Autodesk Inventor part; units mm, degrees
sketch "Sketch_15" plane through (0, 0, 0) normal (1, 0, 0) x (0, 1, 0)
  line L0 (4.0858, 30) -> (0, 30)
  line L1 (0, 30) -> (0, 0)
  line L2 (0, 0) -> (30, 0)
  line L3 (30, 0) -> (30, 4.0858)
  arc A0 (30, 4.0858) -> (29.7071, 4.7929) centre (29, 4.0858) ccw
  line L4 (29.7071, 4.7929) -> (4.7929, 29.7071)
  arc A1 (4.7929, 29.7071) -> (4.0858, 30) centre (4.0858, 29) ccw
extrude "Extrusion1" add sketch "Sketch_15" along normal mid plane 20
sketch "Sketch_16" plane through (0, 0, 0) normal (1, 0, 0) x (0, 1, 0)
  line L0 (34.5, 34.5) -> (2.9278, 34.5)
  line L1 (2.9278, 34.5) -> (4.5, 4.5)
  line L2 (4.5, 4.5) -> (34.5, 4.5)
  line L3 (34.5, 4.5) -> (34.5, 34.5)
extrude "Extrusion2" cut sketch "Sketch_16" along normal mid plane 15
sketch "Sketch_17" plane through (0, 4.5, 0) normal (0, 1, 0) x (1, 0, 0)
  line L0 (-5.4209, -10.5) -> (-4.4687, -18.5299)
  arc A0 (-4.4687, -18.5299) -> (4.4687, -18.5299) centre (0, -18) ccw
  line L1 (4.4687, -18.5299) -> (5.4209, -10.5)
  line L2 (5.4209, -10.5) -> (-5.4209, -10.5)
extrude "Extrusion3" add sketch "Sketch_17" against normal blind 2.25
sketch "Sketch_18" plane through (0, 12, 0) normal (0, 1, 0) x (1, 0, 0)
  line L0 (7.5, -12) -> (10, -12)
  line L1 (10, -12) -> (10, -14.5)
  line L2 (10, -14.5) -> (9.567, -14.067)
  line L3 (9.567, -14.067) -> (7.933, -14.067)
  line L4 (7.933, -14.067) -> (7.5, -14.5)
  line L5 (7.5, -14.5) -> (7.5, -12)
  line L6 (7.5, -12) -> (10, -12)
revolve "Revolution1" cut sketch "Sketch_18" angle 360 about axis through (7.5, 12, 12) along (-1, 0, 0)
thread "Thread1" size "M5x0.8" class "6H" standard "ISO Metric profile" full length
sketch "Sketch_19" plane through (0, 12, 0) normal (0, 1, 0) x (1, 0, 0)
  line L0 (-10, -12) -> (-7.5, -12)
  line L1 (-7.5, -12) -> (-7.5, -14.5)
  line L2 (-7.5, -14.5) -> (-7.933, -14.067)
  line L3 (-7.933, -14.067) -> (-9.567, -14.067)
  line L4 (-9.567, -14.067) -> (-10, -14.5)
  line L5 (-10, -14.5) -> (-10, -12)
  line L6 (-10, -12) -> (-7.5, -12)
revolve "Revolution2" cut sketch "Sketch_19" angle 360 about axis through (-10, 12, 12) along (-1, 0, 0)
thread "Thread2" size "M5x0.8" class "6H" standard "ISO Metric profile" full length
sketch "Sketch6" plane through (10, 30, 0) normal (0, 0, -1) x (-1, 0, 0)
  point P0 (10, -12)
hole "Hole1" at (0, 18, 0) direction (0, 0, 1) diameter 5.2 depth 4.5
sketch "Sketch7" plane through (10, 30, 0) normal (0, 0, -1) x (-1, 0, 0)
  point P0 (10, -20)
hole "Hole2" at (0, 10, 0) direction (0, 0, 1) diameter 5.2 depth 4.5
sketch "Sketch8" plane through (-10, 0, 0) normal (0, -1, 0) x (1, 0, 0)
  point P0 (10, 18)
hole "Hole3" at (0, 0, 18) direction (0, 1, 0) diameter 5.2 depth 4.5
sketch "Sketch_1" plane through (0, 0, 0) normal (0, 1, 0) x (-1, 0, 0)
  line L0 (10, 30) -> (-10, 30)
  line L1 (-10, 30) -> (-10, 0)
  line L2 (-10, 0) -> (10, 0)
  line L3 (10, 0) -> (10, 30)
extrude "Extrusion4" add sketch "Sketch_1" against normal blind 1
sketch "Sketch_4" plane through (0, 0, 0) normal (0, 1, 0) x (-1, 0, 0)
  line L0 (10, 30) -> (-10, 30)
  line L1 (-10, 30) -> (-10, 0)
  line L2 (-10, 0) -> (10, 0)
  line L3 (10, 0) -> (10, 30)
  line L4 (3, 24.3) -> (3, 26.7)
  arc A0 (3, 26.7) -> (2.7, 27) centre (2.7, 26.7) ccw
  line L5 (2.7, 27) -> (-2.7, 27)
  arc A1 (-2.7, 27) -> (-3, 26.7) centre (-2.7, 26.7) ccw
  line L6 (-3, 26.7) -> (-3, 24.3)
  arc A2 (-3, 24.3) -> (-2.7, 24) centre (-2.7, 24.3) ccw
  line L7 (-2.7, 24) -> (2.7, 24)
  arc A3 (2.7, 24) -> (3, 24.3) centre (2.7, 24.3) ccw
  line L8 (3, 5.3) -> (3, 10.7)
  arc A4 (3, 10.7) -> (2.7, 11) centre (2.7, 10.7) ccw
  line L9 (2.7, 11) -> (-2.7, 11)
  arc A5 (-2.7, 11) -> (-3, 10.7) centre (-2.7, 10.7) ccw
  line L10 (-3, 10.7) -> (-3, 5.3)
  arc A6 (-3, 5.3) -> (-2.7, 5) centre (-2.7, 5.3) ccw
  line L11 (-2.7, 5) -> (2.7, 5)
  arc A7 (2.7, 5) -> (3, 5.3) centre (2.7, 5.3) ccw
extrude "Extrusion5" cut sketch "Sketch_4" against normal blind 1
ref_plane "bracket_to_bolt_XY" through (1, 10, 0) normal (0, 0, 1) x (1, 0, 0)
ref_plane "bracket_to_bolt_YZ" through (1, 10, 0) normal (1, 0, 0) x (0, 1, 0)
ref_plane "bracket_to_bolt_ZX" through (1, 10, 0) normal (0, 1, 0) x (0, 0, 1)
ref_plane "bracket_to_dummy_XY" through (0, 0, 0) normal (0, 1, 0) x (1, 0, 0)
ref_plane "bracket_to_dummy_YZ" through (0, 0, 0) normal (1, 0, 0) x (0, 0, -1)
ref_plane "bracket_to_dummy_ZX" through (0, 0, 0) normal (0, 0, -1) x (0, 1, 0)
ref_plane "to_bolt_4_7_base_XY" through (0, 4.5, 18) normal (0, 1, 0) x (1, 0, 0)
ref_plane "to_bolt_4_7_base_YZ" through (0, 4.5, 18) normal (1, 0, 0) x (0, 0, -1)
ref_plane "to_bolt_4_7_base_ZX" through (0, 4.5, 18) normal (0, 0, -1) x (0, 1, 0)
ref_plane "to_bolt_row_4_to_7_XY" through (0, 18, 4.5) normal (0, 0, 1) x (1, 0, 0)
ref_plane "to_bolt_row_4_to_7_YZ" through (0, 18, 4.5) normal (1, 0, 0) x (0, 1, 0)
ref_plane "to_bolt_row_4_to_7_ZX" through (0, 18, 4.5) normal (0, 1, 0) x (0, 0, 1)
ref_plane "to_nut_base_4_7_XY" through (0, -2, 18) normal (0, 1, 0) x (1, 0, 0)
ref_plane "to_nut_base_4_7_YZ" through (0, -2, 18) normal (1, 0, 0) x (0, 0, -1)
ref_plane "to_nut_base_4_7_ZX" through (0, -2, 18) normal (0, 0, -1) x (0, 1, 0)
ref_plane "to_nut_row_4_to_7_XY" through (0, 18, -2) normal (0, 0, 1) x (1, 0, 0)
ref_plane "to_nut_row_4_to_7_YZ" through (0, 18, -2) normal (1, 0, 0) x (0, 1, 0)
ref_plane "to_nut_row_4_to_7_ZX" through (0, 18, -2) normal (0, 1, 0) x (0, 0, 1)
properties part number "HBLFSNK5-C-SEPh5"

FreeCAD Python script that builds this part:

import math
import FreeCAD as App
import Part
import Sketcher

V = App.Vector
Q = App.Units.Quantity


def add_polygon(sketch, points):
    """Adds a closed chain of lines whose ends are joined by coincident constraints."""
    first, n = sketch.GeometryCount, len(points)
    for a, b in zip(points, points[1:] + points[:1]):
        sketch.addGeometry(Part.LineSegment(App.Vector(*a, 0), App.Vector(*b, 0)), False)
    for i in range(n):
        sketch.addConstraint(Sketcher.Constraint("Coincident", first + i, 2, first + (i + 1) % n, 1))

doc = App.newDocument("Part")
body = doc.addObject("PartDesign::Body", "Body")

# Sketch on YZ plane
sketch1 = body.newObject("Sketcher::SketchObject", "Sketch")
sketch1.AttachmentSupport = (doc.getObject("YZ_Plane"), [""])
sketch1.MapMode = "FlatFace"
sketch1.addGeometry([
    Part.ArcOfCircle(Part.Circle(V(4.1, 29, 0), V(0, 0, 1), 1), math.radians(45), math.radians(90)),  # 0
    Part.LineSegment(V(4.1, 30, 0), V(0, 30, 0)),  # 1
    Part.LineSegment(V(0, 30, 0), V(0, 0, 0)),  # 2
    Part.LineSegment(V(0, 0, 0), V(30, 0, 0)),  # 3
    Part.LineSegment(V(30, 0, 0), V(30, 4.1, 0)),  # 4
    Part.ArcOfCircle(Part.Circle(V(29, 4.1, 0), V(0, 0, 1), 1), math.radians(0), math.radians(45)),  # 5
    Part.LineSegment(V(29.7, 4.8, 0), V(4.8, 29.7, 0)),  # 6
], False)
sketch1.addConstraint([
    Sketcher.Constraint("Tangent", 0, 2, 1, 1),
    Sketcher.Constraint("Coincident", 1, 2, 2, 1),
    Sketcher.Constraint("Coincident", 2, 2, 3, 1),
    Sketcher.Constraint("Coincident", 3, 2, 4, 1),
    Sketcher.Constraint("Tangent", 4, 2, 5, 1),
    Sketcher.Constraint("Tangent", 5, 2, 6, 1),
    Sketcher.Constraint("Tangent", 6, 2, 0, 1),
    Sketcher.Constraint("Horizontal", 1),
    Sketcher.Constraint("Vertical", 2),
    Sketcher.Constraint("Horizontal", 3),
    Sketcher.Constraint("Vertical", 4),
    Sketcher.Constraint("Coincident", 2, 2, -1, 1),
    Sketcher.Constraint("Equal", 0, 5),
    Sketcher.Constraint("Equal", 3, 2),
    Sketcher.Constraint("Equal", 1, 4),
    Sketcher.Constraint("Radius", 0, 1.0),
    Sketcher.Constraint("DistanceX", 3, 1, 3, 2, 30.0),
    Sketcher.Constraint("Distance", 6, 35.234),
])
pad1 = body.newObject("PartDesign::Pad", "Pad")
pad1.Profile = sketch1
pad1.Length = 20
pad1.Midplane = True

# Sketch on YZ plane
sketch2 = body.newObject("Sketcher::SketchObject", "Sketch001")
sketch2.AttachmentSupport = (doc.getObject("YZ_Plane"), [""])
sketch2.MapMode = "FlatFace"
add_polygon(sketch2, [(34, 4), (34, 34), (3, 34), (4, 4)])  # lines 0-3
sketch2.addConstraint([
    Sketcher.Constraint("Vertical", 0),
    Sketcher.Constraint("Horizontal", 1),
    Sketcher.Constraint("Horizontal", 3),
    Sketcher.Constraint("Equal", 3, 0),
    Sketcher.Constraint("DistanceX", 3, 1, 3, 2, 30.0),
    Sketcher.Constraint("Angle", 2, Q("-87 deg")),
    Sketcher.Constraint("DistanceX", -1, 1, 0, 2, 34.5),
    Sketcher.Constraint("DistanceY", -1, 1, 0, 2, 34.5),
])
pocket1 = body.newObject("PartDesign::Pocket", "Pocket")
pocket1.Profile = sketch2
pocket1.Length = 15
pocket1.Midplane = True

# Sketch on XZ plane
sketch3 = body.newObject("Sketcher::SketchObject", "Sketch002")
sketch3.AttachmentSupport = (doc.getObject("XZ_Plane"), [""])
sketch3.MapMode = "FlatFace"
sketch3.AttachmentOffset = App.Placement(V(0, 0, -4.5), App.Rotation())
sketch3.addGeometry([
    Part.LineSegment(V(5.4, 10.5, 0), V(-5.4, 10.5, 0)),
    Part.LineSegment(V(-5.4, 10.5, 0), V(-4.5, 18.5, 0)),
    Part.ArcOfCircle(Part.Circle(V(0, 18, 0), V(0, 0, 1), 4.5), math.radians(7), math.radians(173)),
    Part.LineSegment(V(4.5, 18.5, 0), V(5.4, 10.5, 0)),
], False)
sketch3.addConstraint([
    Sketcher.Constraint("Coincident", 0, 2, 1, 1),
    Sketcher.Constraint("Tangent", 1, 2, 2, 2),
    Sketcher.Constraint("Tangent", 2, 1, 3, 1),
    Sketcher.Constraint("Coincident", 3, 2, 0, 1),
    Sketcher.Constraint("Horizontal", 0),
    Sketcher.Constraint("Symmetric", 1, 2, 2, 1, -2),
    Sketcher.Constraint("Radius", 2, 4.5),
    Sketcher.Constraint("DistanceY", -1, 1, 2, 3, 18.0),
    Sketcher.Constraint("DistanceY", -1, 1, 0, 2, 10.5),
    Sketcher.Constraint("DistanceY", -1, 1, 1, 2, 18.53),
])
pad2 = body.newObject("PartDesign::Pad", "Pad001")
pad2.Profile = sketch3
pad2.Length = 2.25

# Sketch on XZ plane
sketch4 = body.newObject("Sketcher::SketchObject", "Sketch003")
sketch4.AttachmentSupport = (doc.getObject("XZ_Plane"), [""])
sketch4.MapMode = "FlatFace"
sketch4.AttachmentOffset = App.Placement(V(0, 0, -12), App.Rotation())
add_polygon(sketch4, [(10, 12), (7.5, 12), (7.5, 14.5), (7.9, 14.1), (9.6, 14.1), (10, 14.5)])  # lines 0-5
sketch4.addGeometry(Part.LineSegment(V(10, 12, 0), V(7.5, 12, 0)), True)  # axis
sketch4.addConstraint([
    Sketcher.Constraint("Horizontal", 0),
    Sketcher.Constraint("Vertical", 1),
    Sketcher.Constraint("Horizontal", 3),
    Sketcher.Constraint("Vertical", 5),
    Sketcher.Constraint("Horizontal", 6),
    Sketcher.Constraint("Coincident", 6, 1, 5, 2),
    Sketcher.Constraint("Perpendicular", 2, 4),
    Sketcher.Constraint("Horizontal", 1, 2, 4, 2),
    Sketcher.Constraint("Vertical", 1, 2, 6, 2),
    Sketcher.Constraint("Equal", 6, 1),
    Sketcher.Constraint("Equal", 2, 4),
    Sketcher.Constraint("DistanceX", 0, 2, 0, 1, 2.5),
    Sketcher.Constraint("DistanceY", -1, 1, 0, 2, 12.0),
    Sketcher.Constraint("DistanceX", -1, 1, 4, 2, 10.0),
    Sketcher.Constraint("DistanceX", 3, 1, 3, 2, 1.634),
])
groove = body.newObject("PartDesign::Groove", "Groove")
groove.Profile = sketch4
groove.ReferenceAxis = (sketch4, ["Axis0"])
groove.Angle = 360

# Sketch on XZ plane
sketch5 = body.newObject("Sketcher::SketchObject", "Sketch004")
sketch5.AttachmentSupport = (doc.getObject("XZ_Plane"), [""])
sketch5.MapMode = "FlatFace"
sketch5.AttachmentOffset = App.Placement(V(0, 0, -12), App.Rotation())
add_polygon(sketch5, [(-7.5, 12), (-10, 12), (-10, 14.5), (-9.6, 14.1), (-7.9, 14.1), (-7.5, 14.5)])  # lines 0-5
sketch5.addGeometry(Part.LineSegment(V(-7.5, 12, 0), V(-10, 12, 0)), True)  # axis
sketch5.addConstraint([
    Sketcher.Constraint("Horizontal", 0),
    Sketcher.Constraint("Vertical", 1),
    Sketcher.Constraint("Horizontal", 3),
    Sketcher.Constraint("Vertical", 5),
    Sketcher.Constraint("Horizontal", 6),
    Sketcher.Constraint("Coincident", 6, 1, 5, 2),
    Sketcher.Constraint("Perpendicular", 2, 4),
    Sketcher.Constraint("Horizontal", 1, 2, 4, 2),
    Sketcher.Constraint("Vertical", 1, 2, 6, 2),
    Sketcher.Constraint("Equal", 6, 1),
    Sketcher.Constraint("Equal", 2, 4),
    Sketcher.Constraint("DistanceX", 0, 2, 0, 1, 2.5),
    Sketcher.Constraint("DistanceX", 0, 2, -1, 1, 10.0),
    Sketcher.Constraint("DistanceY", -1, 1, 0, 2, 12.0),
    Sketcher.Constraint("DistanceX", 3, 1, 3, 2, 1.634),
])
groove2 = body.newObject("PartDesign::Groove", "Groove001")
groove2.Profile = sketch5
groove2.ReferenceAxis = (sketch5, ["Axis0"])
groove2.Angle = 360

# Sketch on XY plane
sketch6 = body.newObject("Sketcher::SketchObject", "Sketch005")
sketch6.AttachmentSupport = (doc.getObject("XY_Plane"), [""])
sketch6.MapMode = "FlatFace"
sketch6.addGeometry(Part.Circle(V(0, 18, 0), V(0, 0, 1), 2.6), False)
sketch6.addConstraint([
    Sketcher.Constraint("PointOnObject", 0, 3, -2),
    Sketcher.Constraint("Diameter", 0, 5.2),
    Sketcher.Constraint("DistanceY", -1, 1, 0, 3, 18.0),
])
doc.recompute()
hole = body.newObject("PartDesign::Hole", "Hole")
hole.Profile = sketch6
hole.ThreadType = "None"
hole.Diameter = 5.2
hole.DepthType = "Dimension"
hole.Depth = 4.5
hole.DrillPoint = "Flat"
hole.Reversed = True

# Sketch on XY plane
sketch7 = body.newObject("Sketcher::SketchObject", "Sketch006")
sketch7.AttachmentSupport = (doc.getObject("XY_Plane"), [""])
sketch7.MapMode = "FlatFace"
sketch7.addGeometry(Part.Circle(V(0, 10, 0), V(0, 0, 1), 2.6), False)
sketch7.addConstraint([
    Sketcher.Constraint("PointOnObject", 0, 3, -2),
    Sketcher.Constraint("Diameter", 0, 5.2),
    Sketcher.Constraint("DistanceY", -1, 1, 0, 3, 10.0),
])
doc.recompute()
hole2 = body.newObject("PartDesign::Hole", "Hole001")
hole2.Profile = sketch7
hole2.ThreadType = "None"
hole2.Diameter = 5.2
hole2.DepthType = "Dimension"
hole2.Depth = 4.5
hole2.DrillPoint = "Flat"
hole2.Reversed = True

# Sketch on XZ plane
sketch8 = body.newObject("Sketcher::SketchObject", "Sketch007")
sketch8.AttachmentSupport = (doc.getObject("XZ_Plane"), [""])
sketch8.MapMode = "FlatFace"
sketch8.addGeometry(Part.Circle(V(0, 18, 0), V(0, 0, 1), 2.6), False)
sketch8.addConstraint([
    Sketcher.Constraint("PointOnObject", 0, 3, -2),
    Sketcher.Constraint("Diameter", 0, 5.2),
    Sketcher.Constraint("DistanceY", -1, 1, 0, 3, 18.0),
])
doc.recompute()
hole3 = body.newObject("PartDesign::Hole", "Hole002")
hole3.Profile = sketch8
hole3.ThreadType = "None"
hole3.Diameter = 5.2
hole3.DepthType = "Dimension"
hole3.Depth = 4.5
hole3.DrillPoint = "Flat"

# Sketch on XZ plane
sketch9 = body.newObject("Sketcher::SketchObject", "Sketch008")
sketch9.AttachmentSupport = (doc.getObject("XZ_Plane"), [""])
sketch9.MapMode = "FlatFace"
add_polygon(sketch9, [(-10, 0), (-10, 30), (10, 30), (10, 0)])  # lines 0-3
sketch9.addConstraint([
    Sketcher.Constraint("Vertical", 0),
    Sketcher.Constraint("Horizontal", 1),
    Sketcher.Constraint("Vertical", 2),
    Sketcher.Constraint("Horizontal", 3),
    Sketcher.Constraint("Symmetric", 2, 2, 3, 2, -1, 1),
    Sketcher.Constraint("DistanceX", 1, 1, 1, 2, 20.0),
    Sketcher.Constraint("DistanceY", 0, 1, 0, 2, 30.0),
])
pad3 = body.newObject("PartDesign::Pad", "Pad002")
pad3.Profile = sketch9
pad3.Length = 1

# Sketch on XZ plane
sketch10 = body.newObject("Sketcher::SketchObject", "Sketch009")
sketch10.AttachmentSupport = (doc.getObject("XZ_Plane"), [""])
sketch10.MapMode = "FlatFace"
add_polygon(sketch10, [(-10, 0), (-10, 30), (10, 30), (10, 0)])  # lines 0-3
sketch10.addGeometry(Part.LineSegment(V(-3, 10.7, 0), V(-3, 5.3, 0)), False)  # 4
sketch10.addGeometry(Part.ArcOfCircle(Part.Circle(V(-2.7, 5.3, 0), V(0, 0, 1), 0.3), math.radians(180), math.radians(270)), False)  # 5
sketch10.addGeometry(Part.LineSegment(V(-2.7, 5, 0), V(2.7, 5, 0)), False)  # 6
sketch10.addGeometry(Part.ArcOfCircle(Part.Circle(V(2.7, 5.3, 0), V(0, 0, 1), 0.3), math.radians(-90), math.radians(0)), False)  # 7
sketch10.addGeometry(Part.LineSegment(V(3, 5.3, 0), V(3, 10.7, 0)), False)  # 8
sketch10.addGeometry(Part.ArcOfCircle(Part.Circle(V(2.7, 10.7, 0), V(0, 0, 1), 0.3), math.radians(0), math.radians(90)), False)  # 9
sketch10.addGeometry(Part.LineSegment(V(2.7, 11, 0), V(-2.7, 11, 0)), False)  # 10
sketch10.addGeometry(Part.ArcOfCircle(Part.Circle(V(-2.7, 10.7, 0), V(0, 0, 1), 0.3), math.radians(90), math.radians(180)), False)  # 11
sketch10.addGeometry(Part.LineSegment(V(-3, 26.7, 0), V(-3, 24.3, 0)), False)  # 12
sketch10.addGeometry(Part.ArcOfCircle(Part.Circle(V(-2.7, 24.3, 0), V(0, 0, 1), 0.3), math.radians(180), math.radians(270)), False)  # 13
sketch10.addGeometry(Part.LineSegment(V(-2.7, 24, 0), V(2.7, 24, 0)), False)  # 14
sketch10.addGeometry(Part.ArcOfCircle(Part.Circle(V(2.7, 24.3, 0), V(0, 0, 1), 0.3), math.radians(-90), math.radians(0)), False)  # 15
sketch10.addGeometry(Part.LineSegment(V(3, 24.3, 0), V(3, 26.7, 0)), False)  # 16
sketch10.addGeometry(Part.ArcOfCircle(Part.Circle(V(2.7, 26.7, 0), V(0, 0, 1), 0.3), math.radians(0), math.radians(90)), False)  # 17
sketch10.addGeometry(Part.LineSegment(V(2.7, 27, 0), V(-2.7, 27, 0)), False)  # 18
sketch10.addGeometry(Part.ArcOfCircle(Part.Circle(V(-2.7, 26.7, 0), V(0, 0, 1), 0.3), math.radians(90), math.radians(180)), False)  # 19
sketch10.addConstraint([
    Sketcher.Constraint("Tangent", 4, 2, 5, 1),
    Sketcher.Constraint("Tangent", 5, 2, 6, 1),
    Sketcher.Constraint("Tangent", 6, 2, 7, 1),
    Sketcher.Constraint("Tangent", 7, 2, 8, 1),
    Sketcher.Constraint("Tangent", 8, 2, 9, 1),
    Sketcher.Constraint("Tangent", 9, 2, 10, 1),
    Sketcher.Constraint("Tangent", 10, 2, 11, 1),
    Sketcher.Constraint("Tangent", 11, 2, 4, 1),
    Sketcher.Constraint("Tangent", 12, 2, 13, 1),
    Sketcher.Constraint("Tangent", 13, 2, 14, 1),
    Sketcher.Constraint("Tangent", 14, 2, 15, 1),
    Sketcher.Constraint("Tangent", 15, 2, 16, 1),
    Sketcher.Constraint("Tangent", 16, 2, 17, 1),
    Sketcher.Constraint("Tangent", 17, 2, 18, 1),
    Sketcher.Constraint("Tangent", 18, 2, 19, 1),
    Sketcher.Constraint("Tangent", 19, 2, 12, 1),
    Sketcher.Constraint("Vertical", 0),
    Sketcher.Constraint("Horizontal", 1),
    Sketcher.Constraint("Vertical", 2),
    Sketcher.Constraint("Horizontal", 3),
    Sketcher.Constraint("Vertical", 4),
    Sketcher.Constraint("Horizontal", 6),
    Sketcher.Constraint("Vertical", 8),
    Sketcher.Constraint("Horizontal", 10),
    Sketcher.Constraint("Vertical", 12),
    Sketcher.Constraint("Horizontal", 14),
    Sketcher.Constraint("Vertical", 16),
    Sketcher.Constraint("Horizontal", 18),
    Sketcher.Constraint("Equal", 5, 7),
    Sketcher.Constraint("Equal", 7, 9),
    Sketcher.Constraint("Equal", 9, 11),
    Sketcher.Constraint("Equal", 11, 13),
    Sketcher.Constraint("Equal", 13, 15),
    Sketcher.Constraint("Equal", 15, 17),
    Sketcher.Constraint("Equal", 17, 19),
    Sketcher.Constraint("Symmetric", 2, 2, 3, 2, -1, 1),
    Sketcher.Constraint("Vertical", 11, 3, 13, 3),
    Sketcher.Constraint("Vertical", 9, 3, 15, 3),
    Sketcher.Constraint("Equal", 18, 4),
    Sketcher.Constraint("Radius", 5, 0.3),
    Sketcher.Constraint("DistanceX", 1, 1, 1, 2, 20.0),
    Sketcher.Constraint("DistanceY", 0, 1, 0, 2, 30.0),
    Sketcher.Constraint("DistanceX", 6, 1, 6, 2, 5.4),
    Sketcher.Constraint("DistanceY", 12, 2, 12, 1, 2.4),
    Sketcher.Constraint("DistanceX", 4, 2, -1, 1, 3.0),
    Sketcher.Constraint("DistanceY", -1, 1, 5, 2, 5.0),
    Sketcher.Constraint("DistanceY", -1, 1, 13, 2, 24.0),
])
pocket2 = body.newObject("PartDesign::Pocket", "Pocket001")
pocket2.Profile = sketch10
pocket2.Length = 1
pocket2.Reversed = True

doc.recompute()
